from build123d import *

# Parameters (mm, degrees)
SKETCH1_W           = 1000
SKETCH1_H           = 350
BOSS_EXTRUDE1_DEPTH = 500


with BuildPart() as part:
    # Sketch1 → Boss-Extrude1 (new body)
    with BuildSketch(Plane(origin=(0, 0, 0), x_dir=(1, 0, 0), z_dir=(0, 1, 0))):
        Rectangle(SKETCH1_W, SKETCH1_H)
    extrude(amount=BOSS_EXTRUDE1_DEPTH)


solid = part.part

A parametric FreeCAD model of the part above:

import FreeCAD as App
import Part
import Sketcher

V = App.Vector

doc = App.newDocument("Part")
body = doc.addObject("PartDesign::Body", "Body")

# Sketch on XZ plane
sketch1 = body.newObject("Sketcher::SketchObject", "Sketch")
sketch1.AttachmentSupport = (doc.getObject("XZ_Plane"), [""])
sketch1.MapMode = "FlatFace"
sketch1.addGeometry(Part.LineSegment(V(-500, -175, 0), V(-500, 175, 0)), False)
sketch1.addGeometry(Part.LineSegment(V(-500, 175, 0), V(500, 175, 0)), False)
sketch1.addGeometry(Part.LineSegment(V(500, 175, 0), V(500, -175, 0)), False)
sketch1.addGeometry(Part.LineSegment(V(500, -175, 0), V(-500, -175, 0)), False)
sketch1.addConstraint(Sketcher.Constraint("Coincident", 0, 2, 1, 1))
sketch1.addConstraint(Sketcher.Constraint("Coincident", 1, 2, 2, 1))
sketch1.addConstraint(Sketcher.Constraint("Coincident", 2, 2, 3, 1))
sketch1.addConstraint(Sketcher.Constraint("Coincident", 3, 2, 0, 1))
sketch1.addConstraint(Sketcher.Constraint("Vertical", 0))
sketch1.addConstraint(Sketcher.Constraint("Horizontal", 1))
sketch1.addConstraint(Sketcher.Constraint("Vertical", 2))
sketch1.addConstraint(Sketcher.Constraint("Horizontal", 3))
sketch1.addConstraint(Sketcher.Constraint("Symmetric", 0, 2, 2, 2, -1, 1))
sketch1.addConstraint(Sketcher.Constraint("DistanceX", 1, 1, 1, 2, 1000.0))
sketch1.addConstraint(Sketcher.Constraint("DistanceY", 0, 1, 0, 2, 350.0))
pad1 = body.newObject("PartDesign::Pad", "Pad")
pad1.Profile = sketch1
pad1.Length = 500
pad1.Reversed = True

doc.recompute()
